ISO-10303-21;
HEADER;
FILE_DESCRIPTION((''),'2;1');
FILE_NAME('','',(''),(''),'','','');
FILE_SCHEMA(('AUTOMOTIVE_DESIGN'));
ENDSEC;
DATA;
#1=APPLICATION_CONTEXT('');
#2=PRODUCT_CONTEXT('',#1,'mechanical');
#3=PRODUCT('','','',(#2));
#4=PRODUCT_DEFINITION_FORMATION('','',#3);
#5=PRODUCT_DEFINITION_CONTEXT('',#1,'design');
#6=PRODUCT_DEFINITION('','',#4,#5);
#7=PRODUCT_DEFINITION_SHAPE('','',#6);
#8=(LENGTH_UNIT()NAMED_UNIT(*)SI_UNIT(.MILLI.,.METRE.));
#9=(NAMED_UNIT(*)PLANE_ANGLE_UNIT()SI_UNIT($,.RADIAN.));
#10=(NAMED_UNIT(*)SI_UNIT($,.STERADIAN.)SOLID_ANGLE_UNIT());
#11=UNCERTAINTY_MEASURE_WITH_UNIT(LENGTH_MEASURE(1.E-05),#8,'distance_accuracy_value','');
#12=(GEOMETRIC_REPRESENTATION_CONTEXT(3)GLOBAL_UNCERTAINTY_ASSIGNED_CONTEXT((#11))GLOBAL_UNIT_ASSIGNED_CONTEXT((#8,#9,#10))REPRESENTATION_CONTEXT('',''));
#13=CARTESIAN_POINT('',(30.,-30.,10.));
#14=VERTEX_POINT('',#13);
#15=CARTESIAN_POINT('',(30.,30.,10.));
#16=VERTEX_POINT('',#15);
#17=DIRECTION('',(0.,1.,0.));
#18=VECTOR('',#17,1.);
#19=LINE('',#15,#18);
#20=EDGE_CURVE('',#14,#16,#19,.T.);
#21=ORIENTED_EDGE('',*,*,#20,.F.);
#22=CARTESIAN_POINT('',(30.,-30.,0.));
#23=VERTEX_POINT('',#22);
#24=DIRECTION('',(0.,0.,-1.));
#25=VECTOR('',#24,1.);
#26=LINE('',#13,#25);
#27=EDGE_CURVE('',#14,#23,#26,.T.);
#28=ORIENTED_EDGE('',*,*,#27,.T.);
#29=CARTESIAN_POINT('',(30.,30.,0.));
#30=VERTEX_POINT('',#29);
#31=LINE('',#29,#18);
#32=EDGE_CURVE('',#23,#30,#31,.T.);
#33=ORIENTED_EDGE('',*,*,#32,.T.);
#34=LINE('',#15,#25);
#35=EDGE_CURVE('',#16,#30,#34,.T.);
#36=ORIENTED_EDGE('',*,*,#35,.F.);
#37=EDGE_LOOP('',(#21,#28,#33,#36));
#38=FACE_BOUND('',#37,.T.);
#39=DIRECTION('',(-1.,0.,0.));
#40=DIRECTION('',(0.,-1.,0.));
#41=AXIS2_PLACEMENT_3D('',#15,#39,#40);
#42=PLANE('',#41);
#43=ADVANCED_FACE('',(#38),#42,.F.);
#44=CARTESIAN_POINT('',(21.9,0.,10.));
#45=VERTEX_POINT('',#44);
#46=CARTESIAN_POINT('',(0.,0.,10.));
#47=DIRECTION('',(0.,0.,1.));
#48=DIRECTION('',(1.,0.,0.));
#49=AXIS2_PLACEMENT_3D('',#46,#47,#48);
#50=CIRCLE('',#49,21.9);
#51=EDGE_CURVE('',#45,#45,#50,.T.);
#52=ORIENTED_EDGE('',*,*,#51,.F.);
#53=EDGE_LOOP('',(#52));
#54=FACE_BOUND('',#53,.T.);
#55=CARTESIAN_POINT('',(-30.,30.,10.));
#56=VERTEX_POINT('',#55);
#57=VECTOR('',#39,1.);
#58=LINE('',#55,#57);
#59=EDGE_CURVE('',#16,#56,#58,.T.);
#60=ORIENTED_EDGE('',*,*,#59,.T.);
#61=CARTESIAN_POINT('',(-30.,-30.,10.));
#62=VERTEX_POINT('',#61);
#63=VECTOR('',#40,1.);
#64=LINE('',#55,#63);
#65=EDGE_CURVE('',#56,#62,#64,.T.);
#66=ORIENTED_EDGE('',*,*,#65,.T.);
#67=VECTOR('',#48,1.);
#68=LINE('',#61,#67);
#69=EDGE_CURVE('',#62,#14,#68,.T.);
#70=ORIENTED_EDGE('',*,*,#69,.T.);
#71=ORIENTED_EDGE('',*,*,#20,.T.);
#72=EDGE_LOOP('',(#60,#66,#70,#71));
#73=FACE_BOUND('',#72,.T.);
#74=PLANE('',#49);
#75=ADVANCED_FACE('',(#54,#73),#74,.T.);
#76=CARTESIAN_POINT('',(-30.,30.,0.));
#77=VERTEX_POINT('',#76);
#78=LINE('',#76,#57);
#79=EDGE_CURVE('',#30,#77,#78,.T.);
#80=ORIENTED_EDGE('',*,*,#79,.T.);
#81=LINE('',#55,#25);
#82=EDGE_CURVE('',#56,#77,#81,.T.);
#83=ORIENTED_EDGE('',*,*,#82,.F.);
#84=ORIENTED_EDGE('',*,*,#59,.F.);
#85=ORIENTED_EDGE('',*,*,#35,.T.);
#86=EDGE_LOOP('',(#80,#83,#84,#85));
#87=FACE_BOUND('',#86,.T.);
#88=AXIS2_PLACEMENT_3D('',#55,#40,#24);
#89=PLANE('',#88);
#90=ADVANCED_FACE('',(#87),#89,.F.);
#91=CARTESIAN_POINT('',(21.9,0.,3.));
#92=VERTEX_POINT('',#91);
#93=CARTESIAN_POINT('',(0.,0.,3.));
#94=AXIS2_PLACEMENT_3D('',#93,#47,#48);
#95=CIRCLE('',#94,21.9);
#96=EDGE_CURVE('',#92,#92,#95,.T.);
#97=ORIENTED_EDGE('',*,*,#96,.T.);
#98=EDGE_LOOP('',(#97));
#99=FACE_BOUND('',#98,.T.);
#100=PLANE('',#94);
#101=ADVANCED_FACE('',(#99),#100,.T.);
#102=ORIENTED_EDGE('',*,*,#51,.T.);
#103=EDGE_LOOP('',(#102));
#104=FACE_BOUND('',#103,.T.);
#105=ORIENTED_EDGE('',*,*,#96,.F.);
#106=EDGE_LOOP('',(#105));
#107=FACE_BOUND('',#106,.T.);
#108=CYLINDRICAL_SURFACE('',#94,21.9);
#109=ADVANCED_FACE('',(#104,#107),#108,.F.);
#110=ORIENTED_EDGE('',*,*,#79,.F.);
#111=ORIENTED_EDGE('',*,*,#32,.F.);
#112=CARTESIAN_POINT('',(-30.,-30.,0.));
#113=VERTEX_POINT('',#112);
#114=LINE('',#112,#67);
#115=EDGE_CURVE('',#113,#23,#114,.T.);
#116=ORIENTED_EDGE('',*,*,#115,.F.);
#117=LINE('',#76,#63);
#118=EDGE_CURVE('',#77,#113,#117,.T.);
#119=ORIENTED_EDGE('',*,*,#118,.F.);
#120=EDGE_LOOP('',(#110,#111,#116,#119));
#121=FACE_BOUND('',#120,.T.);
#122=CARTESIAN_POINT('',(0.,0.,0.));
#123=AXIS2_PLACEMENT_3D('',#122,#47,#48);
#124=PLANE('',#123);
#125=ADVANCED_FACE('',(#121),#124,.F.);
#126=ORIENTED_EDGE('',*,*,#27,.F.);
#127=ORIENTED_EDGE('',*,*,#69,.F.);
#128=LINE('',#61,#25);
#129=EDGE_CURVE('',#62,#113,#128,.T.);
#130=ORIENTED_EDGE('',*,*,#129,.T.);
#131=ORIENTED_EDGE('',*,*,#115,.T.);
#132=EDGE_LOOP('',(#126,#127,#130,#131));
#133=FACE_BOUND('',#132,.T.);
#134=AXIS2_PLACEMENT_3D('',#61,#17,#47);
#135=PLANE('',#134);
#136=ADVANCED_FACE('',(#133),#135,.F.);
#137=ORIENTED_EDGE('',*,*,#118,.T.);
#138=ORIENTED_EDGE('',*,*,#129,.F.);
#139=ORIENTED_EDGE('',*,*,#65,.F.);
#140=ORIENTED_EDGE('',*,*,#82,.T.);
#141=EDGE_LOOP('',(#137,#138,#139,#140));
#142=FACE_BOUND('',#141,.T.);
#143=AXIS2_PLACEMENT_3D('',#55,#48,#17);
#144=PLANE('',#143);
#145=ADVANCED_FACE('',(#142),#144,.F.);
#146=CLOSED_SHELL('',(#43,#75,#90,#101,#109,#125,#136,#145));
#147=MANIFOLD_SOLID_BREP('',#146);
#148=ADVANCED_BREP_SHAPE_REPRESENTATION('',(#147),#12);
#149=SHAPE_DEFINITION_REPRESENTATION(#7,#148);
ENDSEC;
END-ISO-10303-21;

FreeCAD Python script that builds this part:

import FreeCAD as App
import Part
import Sketcher
Q = App.Units.Quantity

doc = App.newDocument("Part")
params = doc.addObject("Spreadsheet::Sheet", "Params")
for row, (alias, value) in enumerate([
    ("sketch1_width", "60 mm"),
    ("pad1_length", "10 mm"),
    ("sketch2_diameter", "43.8 mm"),
    ("pocket1_length", "7 mm"),
], start=1):
    params.set(f"A{row}", alias)
    params.set(f"B{row}", "=" + value)
    params.setAlias(f"B{row}", alias)

body = doc.addObject("PartDesign::Body", "Body")

# Sketch on XY plane
sketch1 = body.newObject("Sketcher::SketchObject", "Sketch")
sketch1.AttachmentSupport = (doc.getObject("XY_Plane"), [""])
sketch1.MapMode = "FlatFace"
sketch1.addGeometry(Part.LineSegment(App.Vector(-30, 30, 0), App.Vector(-30, -30, 0)), False)
sketch1.addGeometry(Part.LineSegment(App.Vector(-30, -30, 0), App.Vector(30, -30, 0)), False)
sketch1.addGeometry(Part.LineSegment(App.Vector(30, -30, 0), App.Vector(30, 30, 0)), False)
sketch1.addGeometry(Part.LineSegment(App.Vector(30, 30, 0), App.Vector(-30, 30, 0)), False)
sketch1.addConstraint(Sketcher.Constraint("Coincident", 0, 2, 1, 1))
sketch1.addConstraint(Sketcher.Constraint("Coincident", 1, 2, 2, 1))
sketch1.addConstraint(Sketcher.Constraint("Coincident", 2, 2, 3, 1))
sketch1.addConstraint(Sketcher.Constraint("Coincident", 3, 2, 0, 1))
sketch1.addConstraint(Sketcher.Constraint("Vertical", 0))
sketch1.addConstraint(Sketcher.Constraint("Horizontal", 1))
sketch1.addConstraint(Sketcher.Constraint("Vertical", 2))
sketch1.addConstraint(Sketcher.Constraint("Horizontal", 3))
sketch1.addConstraint(Sketcher.Constraint("Symmetric", 0, 2, 2, 2, -1, 1))
sketch1.addConstraint(Sketcher.Constraint("Equal", 3, 0))
sketch1.addConstraint(Sketcher.Constraint("DistanceX", 1, 1, 1, 2, Q("60 mm")))
sketch1.setExpression("Constraints[10]", "Params.sketch1_width")
pad1 = body.newObject("PartDesign::Pad", "Pad")
pad1.Profile = sketch1
pad1.setExpression("Length", "Params.pad1_length")

# Sketch on XY plane
sketch2 = body.newObject("Sketcher::SketchObject", "Sketch001")
sketch2.AttachmentSupport = (doc.getObject("XY_Plane"), [""])
sketch2.MapMode = "FlatFace"
sketch2.AttachmentOffset = App.Placement(App.Vector(0, 0, 10), App.Rotation())
sketch2.addGeometry(Part.Circle(App.Vector(0, 0, 0), App.Vector(0, 0, 1), 22), False)
sketch2.addConstraint(Sketcher.Constraint("Coincident", 0, 3, -1, 1))
sketch2.addConstraint(Sketcher.Constraint("Diameter", 0, Q("43.8 mm")))
sketch2.setExpression("Constraints[1]", "Params.sketch2_diameter")
pocket1 = body.newObject("PartDesign::Pocket", "Pocket")
pocket1.Profile = sketch2
pocket1.setExpression("Length", "Params.pocket1_length")

doc.recompute()
